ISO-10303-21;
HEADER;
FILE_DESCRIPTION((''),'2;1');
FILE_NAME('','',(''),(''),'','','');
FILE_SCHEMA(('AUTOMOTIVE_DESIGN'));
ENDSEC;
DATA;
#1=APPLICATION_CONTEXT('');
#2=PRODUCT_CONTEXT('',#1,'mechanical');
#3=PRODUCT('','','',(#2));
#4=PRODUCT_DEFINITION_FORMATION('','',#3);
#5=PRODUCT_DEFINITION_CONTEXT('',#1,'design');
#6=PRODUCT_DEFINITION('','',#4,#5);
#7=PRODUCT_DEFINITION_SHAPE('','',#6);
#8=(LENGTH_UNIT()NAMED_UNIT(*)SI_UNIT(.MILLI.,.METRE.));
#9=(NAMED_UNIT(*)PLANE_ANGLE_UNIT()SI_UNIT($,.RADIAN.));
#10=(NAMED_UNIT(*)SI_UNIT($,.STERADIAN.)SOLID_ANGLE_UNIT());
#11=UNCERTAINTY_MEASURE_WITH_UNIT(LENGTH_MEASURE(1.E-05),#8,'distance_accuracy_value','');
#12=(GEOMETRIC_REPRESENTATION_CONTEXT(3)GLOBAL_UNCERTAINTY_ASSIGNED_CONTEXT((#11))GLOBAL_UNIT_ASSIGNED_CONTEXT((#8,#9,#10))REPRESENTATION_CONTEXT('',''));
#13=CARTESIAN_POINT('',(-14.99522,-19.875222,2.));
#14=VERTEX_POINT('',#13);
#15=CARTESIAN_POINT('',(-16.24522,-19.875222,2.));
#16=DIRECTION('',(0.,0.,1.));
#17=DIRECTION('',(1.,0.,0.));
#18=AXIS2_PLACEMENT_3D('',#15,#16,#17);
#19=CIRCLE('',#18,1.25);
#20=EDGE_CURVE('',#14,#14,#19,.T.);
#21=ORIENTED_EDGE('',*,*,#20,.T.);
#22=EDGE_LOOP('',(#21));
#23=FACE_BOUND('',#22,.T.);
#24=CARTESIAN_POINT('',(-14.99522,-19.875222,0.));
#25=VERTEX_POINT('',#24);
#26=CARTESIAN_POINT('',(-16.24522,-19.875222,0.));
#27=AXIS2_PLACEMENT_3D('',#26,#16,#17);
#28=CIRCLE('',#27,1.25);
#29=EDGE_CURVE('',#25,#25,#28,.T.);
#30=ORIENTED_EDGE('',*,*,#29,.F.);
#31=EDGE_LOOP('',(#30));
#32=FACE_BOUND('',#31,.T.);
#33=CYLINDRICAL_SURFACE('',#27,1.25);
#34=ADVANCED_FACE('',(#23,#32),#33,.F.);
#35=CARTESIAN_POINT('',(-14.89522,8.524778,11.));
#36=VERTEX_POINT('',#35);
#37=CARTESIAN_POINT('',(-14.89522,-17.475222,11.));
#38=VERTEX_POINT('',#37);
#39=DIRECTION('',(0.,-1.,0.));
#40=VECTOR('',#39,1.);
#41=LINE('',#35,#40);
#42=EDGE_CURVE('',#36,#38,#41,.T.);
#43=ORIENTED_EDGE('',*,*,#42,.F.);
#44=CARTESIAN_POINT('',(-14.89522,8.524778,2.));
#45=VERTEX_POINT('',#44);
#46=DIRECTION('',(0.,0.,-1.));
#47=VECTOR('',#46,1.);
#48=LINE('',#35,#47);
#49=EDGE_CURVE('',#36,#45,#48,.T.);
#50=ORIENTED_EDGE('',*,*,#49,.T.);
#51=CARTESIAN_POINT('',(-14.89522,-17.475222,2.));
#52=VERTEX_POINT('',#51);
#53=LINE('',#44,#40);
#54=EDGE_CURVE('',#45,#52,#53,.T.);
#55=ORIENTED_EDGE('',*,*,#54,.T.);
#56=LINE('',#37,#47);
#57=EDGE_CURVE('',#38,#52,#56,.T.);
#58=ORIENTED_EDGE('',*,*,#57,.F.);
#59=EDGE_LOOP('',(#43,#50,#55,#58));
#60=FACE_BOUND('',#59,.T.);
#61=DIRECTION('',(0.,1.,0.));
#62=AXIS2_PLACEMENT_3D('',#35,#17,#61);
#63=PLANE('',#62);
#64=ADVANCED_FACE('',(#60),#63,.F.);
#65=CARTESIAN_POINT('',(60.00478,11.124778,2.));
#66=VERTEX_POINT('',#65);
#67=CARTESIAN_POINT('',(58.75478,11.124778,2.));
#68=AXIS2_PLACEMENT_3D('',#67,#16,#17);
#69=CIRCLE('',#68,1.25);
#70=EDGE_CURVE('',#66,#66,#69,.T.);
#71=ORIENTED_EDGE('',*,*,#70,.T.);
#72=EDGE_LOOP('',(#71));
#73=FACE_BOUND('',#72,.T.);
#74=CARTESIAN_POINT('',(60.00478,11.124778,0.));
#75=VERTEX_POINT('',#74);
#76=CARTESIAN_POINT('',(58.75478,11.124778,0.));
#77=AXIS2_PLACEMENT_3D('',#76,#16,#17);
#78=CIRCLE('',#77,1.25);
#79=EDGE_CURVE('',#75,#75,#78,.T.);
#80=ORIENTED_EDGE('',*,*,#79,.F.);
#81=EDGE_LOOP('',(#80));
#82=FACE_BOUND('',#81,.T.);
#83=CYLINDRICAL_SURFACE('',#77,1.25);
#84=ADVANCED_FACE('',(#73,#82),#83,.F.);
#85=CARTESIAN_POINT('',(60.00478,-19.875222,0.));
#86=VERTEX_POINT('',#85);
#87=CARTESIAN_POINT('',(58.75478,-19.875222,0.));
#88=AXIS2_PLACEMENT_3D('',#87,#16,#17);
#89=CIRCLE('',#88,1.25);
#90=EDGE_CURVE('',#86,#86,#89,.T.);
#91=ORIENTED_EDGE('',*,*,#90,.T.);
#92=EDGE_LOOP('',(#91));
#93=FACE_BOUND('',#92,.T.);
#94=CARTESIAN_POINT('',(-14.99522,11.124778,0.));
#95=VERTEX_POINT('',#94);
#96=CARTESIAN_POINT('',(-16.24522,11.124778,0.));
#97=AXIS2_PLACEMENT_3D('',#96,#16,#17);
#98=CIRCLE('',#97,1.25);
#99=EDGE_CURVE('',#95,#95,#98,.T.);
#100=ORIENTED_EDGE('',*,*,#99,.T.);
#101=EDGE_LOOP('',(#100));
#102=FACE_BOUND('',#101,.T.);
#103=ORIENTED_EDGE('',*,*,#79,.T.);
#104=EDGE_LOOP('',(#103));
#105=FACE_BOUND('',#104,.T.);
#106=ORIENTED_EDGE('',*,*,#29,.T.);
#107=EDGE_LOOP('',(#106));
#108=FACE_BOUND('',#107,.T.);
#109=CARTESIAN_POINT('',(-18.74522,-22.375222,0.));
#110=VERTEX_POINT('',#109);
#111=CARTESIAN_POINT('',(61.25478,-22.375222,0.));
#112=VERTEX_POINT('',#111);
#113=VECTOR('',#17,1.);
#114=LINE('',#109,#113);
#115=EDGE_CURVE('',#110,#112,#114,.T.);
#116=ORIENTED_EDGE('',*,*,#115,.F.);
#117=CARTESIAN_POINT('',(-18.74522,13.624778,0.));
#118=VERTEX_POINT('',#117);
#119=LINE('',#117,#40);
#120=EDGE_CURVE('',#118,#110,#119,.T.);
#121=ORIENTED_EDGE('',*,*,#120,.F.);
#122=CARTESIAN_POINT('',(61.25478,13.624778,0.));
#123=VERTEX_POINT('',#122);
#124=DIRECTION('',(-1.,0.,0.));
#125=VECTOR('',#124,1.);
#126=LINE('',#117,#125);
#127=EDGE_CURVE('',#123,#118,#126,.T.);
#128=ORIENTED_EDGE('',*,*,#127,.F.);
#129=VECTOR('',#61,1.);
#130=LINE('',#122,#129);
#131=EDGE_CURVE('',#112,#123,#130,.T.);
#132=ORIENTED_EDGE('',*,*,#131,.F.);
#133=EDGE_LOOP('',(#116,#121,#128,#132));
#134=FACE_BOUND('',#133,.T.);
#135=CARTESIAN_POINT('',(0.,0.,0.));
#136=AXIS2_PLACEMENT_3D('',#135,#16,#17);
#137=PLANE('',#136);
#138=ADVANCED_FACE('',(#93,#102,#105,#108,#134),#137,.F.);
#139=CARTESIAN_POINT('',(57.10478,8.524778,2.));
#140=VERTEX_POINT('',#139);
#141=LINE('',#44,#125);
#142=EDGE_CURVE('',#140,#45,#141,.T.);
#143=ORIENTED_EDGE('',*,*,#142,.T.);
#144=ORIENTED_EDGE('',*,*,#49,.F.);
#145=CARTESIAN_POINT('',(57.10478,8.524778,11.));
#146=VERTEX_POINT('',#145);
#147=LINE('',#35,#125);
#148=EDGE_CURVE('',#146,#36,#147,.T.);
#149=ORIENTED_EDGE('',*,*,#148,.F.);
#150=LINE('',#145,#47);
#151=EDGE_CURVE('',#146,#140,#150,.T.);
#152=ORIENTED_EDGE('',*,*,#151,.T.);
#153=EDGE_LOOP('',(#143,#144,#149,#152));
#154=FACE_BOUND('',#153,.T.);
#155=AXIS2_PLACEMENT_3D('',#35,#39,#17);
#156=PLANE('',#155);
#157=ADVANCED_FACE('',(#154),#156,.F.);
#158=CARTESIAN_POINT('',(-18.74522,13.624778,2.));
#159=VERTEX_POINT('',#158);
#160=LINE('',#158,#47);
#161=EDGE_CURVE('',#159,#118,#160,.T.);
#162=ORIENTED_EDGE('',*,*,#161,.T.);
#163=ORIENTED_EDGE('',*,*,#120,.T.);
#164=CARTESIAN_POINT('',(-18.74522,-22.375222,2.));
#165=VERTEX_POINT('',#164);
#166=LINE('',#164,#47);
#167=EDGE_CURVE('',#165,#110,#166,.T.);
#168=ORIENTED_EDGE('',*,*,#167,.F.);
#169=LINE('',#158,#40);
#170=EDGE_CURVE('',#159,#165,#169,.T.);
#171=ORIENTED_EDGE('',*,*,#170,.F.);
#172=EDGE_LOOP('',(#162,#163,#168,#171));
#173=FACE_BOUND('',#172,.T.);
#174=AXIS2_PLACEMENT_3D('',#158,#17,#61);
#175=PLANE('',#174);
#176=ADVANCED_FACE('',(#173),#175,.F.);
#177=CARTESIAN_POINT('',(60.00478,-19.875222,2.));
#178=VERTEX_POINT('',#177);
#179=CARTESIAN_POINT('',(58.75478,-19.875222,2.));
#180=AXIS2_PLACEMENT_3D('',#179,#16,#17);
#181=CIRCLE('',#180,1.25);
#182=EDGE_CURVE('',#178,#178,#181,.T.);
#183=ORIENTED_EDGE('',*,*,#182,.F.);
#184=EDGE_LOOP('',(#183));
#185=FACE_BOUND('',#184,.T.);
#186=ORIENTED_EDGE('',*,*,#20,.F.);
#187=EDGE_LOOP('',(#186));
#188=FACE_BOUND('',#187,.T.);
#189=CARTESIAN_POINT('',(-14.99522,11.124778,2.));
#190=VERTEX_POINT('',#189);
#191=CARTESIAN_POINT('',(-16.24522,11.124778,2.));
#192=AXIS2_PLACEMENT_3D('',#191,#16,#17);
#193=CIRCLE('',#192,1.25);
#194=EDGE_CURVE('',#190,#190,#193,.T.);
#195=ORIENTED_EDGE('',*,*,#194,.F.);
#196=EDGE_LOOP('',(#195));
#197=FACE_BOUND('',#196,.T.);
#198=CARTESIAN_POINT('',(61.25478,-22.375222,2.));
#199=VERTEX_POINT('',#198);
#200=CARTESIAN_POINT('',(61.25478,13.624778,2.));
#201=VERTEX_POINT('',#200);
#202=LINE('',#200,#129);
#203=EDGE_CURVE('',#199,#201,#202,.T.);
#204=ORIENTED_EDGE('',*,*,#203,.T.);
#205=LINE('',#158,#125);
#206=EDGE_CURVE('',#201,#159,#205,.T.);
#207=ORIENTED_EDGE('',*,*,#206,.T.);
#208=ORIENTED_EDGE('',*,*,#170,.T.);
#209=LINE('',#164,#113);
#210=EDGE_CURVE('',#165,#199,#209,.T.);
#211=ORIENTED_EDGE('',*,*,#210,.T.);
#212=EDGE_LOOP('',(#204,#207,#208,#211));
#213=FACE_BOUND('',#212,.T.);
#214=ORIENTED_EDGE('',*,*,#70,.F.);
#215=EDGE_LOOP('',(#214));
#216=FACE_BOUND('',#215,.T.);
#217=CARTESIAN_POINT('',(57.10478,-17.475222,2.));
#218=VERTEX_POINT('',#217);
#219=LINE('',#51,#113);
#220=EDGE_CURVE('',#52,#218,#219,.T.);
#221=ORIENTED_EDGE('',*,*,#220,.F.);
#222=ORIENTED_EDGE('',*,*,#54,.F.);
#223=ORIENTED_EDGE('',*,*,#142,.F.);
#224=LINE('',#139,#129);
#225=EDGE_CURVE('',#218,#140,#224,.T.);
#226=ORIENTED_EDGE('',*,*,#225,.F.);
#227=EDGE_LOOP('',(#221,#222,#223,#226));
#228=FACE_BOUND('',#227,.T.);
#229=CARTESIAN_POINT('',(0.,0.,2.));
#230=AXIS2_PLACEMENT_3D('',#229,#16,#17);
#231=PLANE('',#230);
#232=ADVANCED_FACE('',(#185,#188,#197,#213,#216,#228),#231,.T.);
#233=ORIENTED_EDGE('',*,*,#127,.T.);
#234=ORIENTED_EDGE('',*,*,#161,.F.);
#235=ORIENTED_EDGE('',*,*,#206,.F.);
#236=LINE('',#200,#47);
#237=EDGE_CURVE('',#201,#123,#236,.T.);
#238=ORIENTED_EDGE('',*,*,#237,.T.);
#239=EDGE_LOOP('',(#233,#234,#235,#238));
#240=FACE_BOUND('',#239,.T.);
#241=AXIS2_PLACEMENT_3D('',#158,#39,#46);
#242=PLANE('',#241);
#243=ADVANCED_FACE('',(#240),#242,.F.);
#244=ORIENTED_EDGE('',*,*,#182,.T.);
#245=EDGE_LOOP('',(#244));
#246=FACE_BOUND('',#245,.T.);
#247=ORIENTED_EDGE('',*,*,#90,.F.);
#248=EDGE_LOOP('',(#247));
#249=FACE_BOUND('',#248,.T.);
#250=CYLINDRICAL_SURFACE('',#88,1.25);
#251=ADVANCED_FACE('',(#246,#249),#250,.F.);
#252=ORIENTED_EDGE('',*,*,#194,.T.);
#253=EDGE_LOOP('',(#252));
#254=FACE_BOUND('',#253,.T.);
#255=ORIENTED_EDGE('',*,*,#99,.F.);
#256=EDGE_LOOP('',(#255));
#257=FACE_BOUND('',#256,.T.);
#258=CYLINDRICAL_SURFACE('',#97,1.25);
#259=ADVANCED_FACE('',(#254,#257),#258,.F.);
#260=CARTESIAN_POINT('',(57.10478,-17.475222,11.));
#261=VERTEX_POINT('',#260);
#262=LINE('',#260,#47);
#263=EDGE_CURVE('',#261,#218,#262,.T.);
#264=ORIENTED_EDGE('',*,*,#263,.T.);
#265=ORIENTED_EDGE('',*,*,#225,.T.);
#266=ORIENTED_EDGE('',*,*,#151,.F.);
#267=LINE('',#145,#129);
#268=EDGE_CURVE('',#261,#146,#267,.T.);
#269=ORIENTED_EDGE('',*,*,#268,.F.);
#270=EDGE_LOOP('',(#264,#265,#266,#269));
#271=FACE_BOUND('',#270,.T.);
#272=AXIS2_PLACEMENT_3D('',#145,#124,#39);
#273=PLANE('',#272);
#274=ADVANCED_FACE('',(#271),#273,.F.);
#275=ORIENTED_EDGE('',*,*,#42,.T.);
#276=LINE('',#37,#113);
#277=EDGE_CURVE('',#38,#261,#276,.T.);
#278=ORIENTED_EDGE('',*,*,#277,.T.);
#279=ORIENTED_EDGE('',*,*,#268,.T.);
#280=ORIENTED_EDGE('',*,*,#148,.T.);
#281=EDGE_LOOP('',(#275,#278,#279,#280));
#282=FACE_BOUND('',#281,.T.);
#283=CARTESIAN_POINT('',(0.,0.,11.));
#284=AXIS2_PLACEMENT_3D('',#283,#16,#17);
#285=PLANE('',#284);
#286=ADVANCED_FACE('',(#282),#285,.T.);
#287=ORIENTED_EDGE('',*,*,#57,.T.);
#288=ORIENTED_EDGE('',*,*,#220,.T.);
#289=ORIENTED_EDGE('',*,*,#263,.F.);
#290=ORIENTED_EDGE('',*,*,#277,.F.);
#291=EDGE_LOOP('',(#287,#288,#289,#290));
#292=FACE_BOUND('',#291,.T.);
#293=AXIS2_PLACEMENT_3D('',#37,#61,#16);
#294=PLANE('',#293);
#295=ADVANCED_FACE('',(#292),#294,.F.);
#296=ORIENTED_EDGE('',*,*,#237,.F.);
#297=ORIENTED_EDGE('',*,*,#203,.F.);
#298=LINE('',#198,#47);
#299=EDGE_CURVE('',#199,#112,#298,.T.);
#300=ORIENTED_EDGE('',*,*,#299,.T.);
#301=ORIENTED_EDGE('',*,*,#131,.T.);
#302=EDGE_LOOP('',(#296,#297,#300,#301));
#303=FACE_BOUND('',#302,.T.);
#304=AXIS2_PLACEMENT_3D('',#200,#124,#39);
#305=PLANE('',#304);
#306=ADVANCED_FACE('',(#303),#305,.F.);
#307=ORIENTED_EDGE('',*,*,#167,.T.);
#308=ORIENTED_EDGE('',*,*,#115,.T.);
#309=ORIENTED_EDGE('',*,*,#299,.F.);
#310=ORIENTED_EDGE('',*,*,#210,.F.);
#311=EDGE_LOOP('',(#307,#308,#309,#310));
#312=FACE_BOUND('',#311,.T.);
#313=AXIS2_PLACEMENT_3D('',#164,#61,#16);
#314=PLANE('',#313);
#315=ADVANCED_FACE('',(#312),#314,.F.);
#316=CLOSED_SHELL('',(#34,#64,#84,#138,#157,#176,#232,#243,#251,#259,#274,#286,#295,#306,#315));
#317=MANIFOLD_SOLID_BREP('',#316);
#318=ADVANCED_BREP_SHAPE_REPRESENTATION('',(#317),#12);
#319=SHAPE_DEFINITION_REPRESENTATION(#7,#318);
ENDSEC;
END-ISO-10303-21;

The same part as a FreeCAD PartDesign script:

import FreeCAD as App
import Part
import Sketcher
from FreeCAD import Vector
Q = App.Units.Quantity

doc = App.newDocument("Part")
body = doc.addObject("PartDesign::Body", "Body")

# Sketch on XY plane
sketch1 = body.newObject("Sketcher::SketchObject", "Sketch")
sketch1.AttachmentSupport = (doc.getObject("XY_Plane"), [""])
sketch1.MapMode = "FlatFace"
sketch1.addGeometry(Part.LineSegment(Vector(-18.74522, 13.624778, 0), Vector(-18.74522, -22.375222, 0)), False)
sketch1.addGeometry(Part.LineSegment(Vector(-18.74522, -22.375222, 0), Vector(61.25478, -22.375222, 0)), False)
sketch1.addGeometry(Part.LineSegment(Vector(61.25478, -22.375222, 0), Vector(61.25478, 13.624778, 0)), False)
sketch1.addGeometry(Part.LineSegment(Vector(61.25478, 13.624778, 0), Vector(-18.74522, 13.624778, 0)), False)
sketch1.addConstraint(Sketcher.Constraint("Coincident", 0, 2, 1, 1))
sketch1.addConstraint(Sketcher.Constraint("Coincident", 1, 2, 2, 1))
sketch1.addConstraint(Sketcher.Constraint("Coincident", 2, 2, 3, 1))
sketch1.addConstraint(Sketcher.Constraint("Coincident", 3, 2, 0, 1))
sketch1.addConstraint(Sketcher.Constraint("Vertical", 0))
sketch1.addConstraint(Sketcher.Constraint("Horizontal", 1))
sketch1.addConstraint(Sketcher.Constraint("Vertical", 2))
sketch1.addConstraint(Sketcher.Constraint("Horizontal", 3))
sketch1.addConstraint(Sketcher.Constraint("DistanceX", 1, 1, 1, 2, Q("80 mm")))
sketch1.addConstraint(Sketcher.Constraint("DistanceY", 0, 2, 0, 1, Q("36 mm")))
sketch1.addConstraint(Sketcher.Constraint("DistanceX", 0, 2, -1, 1, Q("18.74522 mm")))
sketch1.addConstraint(Sketcher.Constraint("DistanceY", 0, 2, -1, 1, Q("22.375222 mm")))
pad1 = body.newObject("PartDesign::Pad", "Pad")
pad1.Profile = sketch1
pad1.Length = 2

# Sketch on XY plane
sketch2 = body.newObject("Sketcher::SketchObject", "Sketch001")
sketch2.AttachmentSupport = (doc.getObject("XY_Plane"), [""])
sketch2.MapMode = "FlatFace"
sketch2.AttachmentOffset = App.Placement(Vector(0, 0, 2), App.Rotation())
sketch2.addGeometry(Part.LineSegment(Vector(-14.89522, 8.524778, 0), Vector(-14.89522, -17.475222, 0)), False)
sketch2.addGeometry(Part.LineSegment(Vector(-14.89522, -17.475222, 0), Vector(57.10478, -17.475222, 0)), False)
sketch2.addGeometry(Part.LineSegment(Vector(57.10478, -17.475222, 0), Vector(57.10478, 8.524778, 0)), False)
sketch2.addGeometry(Part.LineSegment(Vector(57.10478, 8.524778, 0), Vector(-14.89522, 8.524778, 0)), False)
sketch2.addConstraint(Sketcher.Constraint("Coincident", 0, 2, 1, 1))
sketch2.addConstraint(Sketcher.Constraint("Coincident", 1, 2, 2, 1))
sketch2.addConstraint(Sketcher.Constraint("Coincident", 2, 2, 3, 1))
sketch2.addConstraint(Sketcher.Constraint("Coincident", 3, 2, 0, 1))
sketch2.addConstraint(Sketcher.Constraint("Vertical", 0))
sketch2.addConstraint(Sketcher.Constraint("Horizontal", 1))
sketch2.addConstraint(Sketcher.Constraint("Vertical", 2))
sketch2.addConstraint(Sketcher.Constraint("Horizontal", 3))
sketch2.addConstraint(Sketcher.Constraint("DistanceX", 1, 1, 1, 2, Q("72 mm")))
sketch2.addConstraint(Sketcher.Constraint("DistanceY", 0, 2, 0, 1, Q("26 mm")))
sketch2.addConstraint(Sketcher.Constraint("DistanceX", 0, 2, -1, 1, Q("14.89522 mm")))
sketch2.addConstraint(Sketcher.Constraint("DistanceY", 0, 2, -1, 1, Q("17.475222 mm")))
pad2 = body.newObject("PartDesign::Pad", "Pad001")
pad2.Profile = sketch2
pad2.Length = 9

# Sketch on XY plane
sketch3 = body.newObject("Sketcher::SketchObject", "Sketch002")
sketch3.AttachmentSupport = (doc.getObject("XY_Plane"), [""])
sketch3.MapMode = "FlatFace"
sketch3.AttachmentOffset = App.Placement(Vector(0, 0, 2), App.Rotation())
sketch3.addGeometry(Part.Circle(Vector(-16.24522, 11.124778, 0), Vector(0, 0, 1), 1.25), False)
sketch3.addGeometry(Part.Circle(Vector(58.75478, 11.124778, 0), Vector(0, 0, 1), 1.25), False)
sketch3.addGeometry(Part.Circle(Vector(58.75478, -19.875222, 0), Vector(0, 0, 1), 1.25), False)
sketch3.addGeometry(Part.Circle(Vector(-16.24522, -19.875222, 0), Vector(0, 0, 1), 1.25), False)
sketch3.addConstraint(Sketcher.Constraint("Equal", 0, 1))
sketch3.addConstraint(Sketcher.Constraint("Equal", 1, 2))
sketch3.addConstraint(Sketcher.Constraint("Equal", 2, 3))
sketch3.addConstraint(Sketcher.Constraint("Horizontal", 0, 3, 1, 3))
sketch3.addConstraint(Sketcher.Constraint("Horizontal", 2, 3, 3, 3))
sketch3.addConstraint(Sketcher.Constraint("Vertical", 1, 3, 2, 3))
sketch3.addConstraint(Sketcher.Constraint("Vertical", 0, 3, 3, 3))
sketch3.addConstraint(Sketcher.Constraint("Diameter", 0, Q("2.5 mm")))
sketch3.addConstraint(Sketcher.Constraint("DistanceX", 0, 3, 1, 3, Q("75 mm")))
sketch3.addConstraint(Sketcher.Constraint("DistanceY", 2, 3, 1, 3, Q("31 mm")))
sketch3.addConstraint(Sketcher.Constraint("DistanceX", 0, 3, -1, 1, Q("16.24522 mm")))
sketch3.addConstraint(Sketcher.Constraint("DistanceY", -1, 1, 0, 3, Q("11.124778 mm")))
pocket1 = body.newObject("PartDesign::Pocket", "Pocket")
pocket1.Profile = sketch3
pocket1.Type = "ThroughAll"

doc.recompute()
